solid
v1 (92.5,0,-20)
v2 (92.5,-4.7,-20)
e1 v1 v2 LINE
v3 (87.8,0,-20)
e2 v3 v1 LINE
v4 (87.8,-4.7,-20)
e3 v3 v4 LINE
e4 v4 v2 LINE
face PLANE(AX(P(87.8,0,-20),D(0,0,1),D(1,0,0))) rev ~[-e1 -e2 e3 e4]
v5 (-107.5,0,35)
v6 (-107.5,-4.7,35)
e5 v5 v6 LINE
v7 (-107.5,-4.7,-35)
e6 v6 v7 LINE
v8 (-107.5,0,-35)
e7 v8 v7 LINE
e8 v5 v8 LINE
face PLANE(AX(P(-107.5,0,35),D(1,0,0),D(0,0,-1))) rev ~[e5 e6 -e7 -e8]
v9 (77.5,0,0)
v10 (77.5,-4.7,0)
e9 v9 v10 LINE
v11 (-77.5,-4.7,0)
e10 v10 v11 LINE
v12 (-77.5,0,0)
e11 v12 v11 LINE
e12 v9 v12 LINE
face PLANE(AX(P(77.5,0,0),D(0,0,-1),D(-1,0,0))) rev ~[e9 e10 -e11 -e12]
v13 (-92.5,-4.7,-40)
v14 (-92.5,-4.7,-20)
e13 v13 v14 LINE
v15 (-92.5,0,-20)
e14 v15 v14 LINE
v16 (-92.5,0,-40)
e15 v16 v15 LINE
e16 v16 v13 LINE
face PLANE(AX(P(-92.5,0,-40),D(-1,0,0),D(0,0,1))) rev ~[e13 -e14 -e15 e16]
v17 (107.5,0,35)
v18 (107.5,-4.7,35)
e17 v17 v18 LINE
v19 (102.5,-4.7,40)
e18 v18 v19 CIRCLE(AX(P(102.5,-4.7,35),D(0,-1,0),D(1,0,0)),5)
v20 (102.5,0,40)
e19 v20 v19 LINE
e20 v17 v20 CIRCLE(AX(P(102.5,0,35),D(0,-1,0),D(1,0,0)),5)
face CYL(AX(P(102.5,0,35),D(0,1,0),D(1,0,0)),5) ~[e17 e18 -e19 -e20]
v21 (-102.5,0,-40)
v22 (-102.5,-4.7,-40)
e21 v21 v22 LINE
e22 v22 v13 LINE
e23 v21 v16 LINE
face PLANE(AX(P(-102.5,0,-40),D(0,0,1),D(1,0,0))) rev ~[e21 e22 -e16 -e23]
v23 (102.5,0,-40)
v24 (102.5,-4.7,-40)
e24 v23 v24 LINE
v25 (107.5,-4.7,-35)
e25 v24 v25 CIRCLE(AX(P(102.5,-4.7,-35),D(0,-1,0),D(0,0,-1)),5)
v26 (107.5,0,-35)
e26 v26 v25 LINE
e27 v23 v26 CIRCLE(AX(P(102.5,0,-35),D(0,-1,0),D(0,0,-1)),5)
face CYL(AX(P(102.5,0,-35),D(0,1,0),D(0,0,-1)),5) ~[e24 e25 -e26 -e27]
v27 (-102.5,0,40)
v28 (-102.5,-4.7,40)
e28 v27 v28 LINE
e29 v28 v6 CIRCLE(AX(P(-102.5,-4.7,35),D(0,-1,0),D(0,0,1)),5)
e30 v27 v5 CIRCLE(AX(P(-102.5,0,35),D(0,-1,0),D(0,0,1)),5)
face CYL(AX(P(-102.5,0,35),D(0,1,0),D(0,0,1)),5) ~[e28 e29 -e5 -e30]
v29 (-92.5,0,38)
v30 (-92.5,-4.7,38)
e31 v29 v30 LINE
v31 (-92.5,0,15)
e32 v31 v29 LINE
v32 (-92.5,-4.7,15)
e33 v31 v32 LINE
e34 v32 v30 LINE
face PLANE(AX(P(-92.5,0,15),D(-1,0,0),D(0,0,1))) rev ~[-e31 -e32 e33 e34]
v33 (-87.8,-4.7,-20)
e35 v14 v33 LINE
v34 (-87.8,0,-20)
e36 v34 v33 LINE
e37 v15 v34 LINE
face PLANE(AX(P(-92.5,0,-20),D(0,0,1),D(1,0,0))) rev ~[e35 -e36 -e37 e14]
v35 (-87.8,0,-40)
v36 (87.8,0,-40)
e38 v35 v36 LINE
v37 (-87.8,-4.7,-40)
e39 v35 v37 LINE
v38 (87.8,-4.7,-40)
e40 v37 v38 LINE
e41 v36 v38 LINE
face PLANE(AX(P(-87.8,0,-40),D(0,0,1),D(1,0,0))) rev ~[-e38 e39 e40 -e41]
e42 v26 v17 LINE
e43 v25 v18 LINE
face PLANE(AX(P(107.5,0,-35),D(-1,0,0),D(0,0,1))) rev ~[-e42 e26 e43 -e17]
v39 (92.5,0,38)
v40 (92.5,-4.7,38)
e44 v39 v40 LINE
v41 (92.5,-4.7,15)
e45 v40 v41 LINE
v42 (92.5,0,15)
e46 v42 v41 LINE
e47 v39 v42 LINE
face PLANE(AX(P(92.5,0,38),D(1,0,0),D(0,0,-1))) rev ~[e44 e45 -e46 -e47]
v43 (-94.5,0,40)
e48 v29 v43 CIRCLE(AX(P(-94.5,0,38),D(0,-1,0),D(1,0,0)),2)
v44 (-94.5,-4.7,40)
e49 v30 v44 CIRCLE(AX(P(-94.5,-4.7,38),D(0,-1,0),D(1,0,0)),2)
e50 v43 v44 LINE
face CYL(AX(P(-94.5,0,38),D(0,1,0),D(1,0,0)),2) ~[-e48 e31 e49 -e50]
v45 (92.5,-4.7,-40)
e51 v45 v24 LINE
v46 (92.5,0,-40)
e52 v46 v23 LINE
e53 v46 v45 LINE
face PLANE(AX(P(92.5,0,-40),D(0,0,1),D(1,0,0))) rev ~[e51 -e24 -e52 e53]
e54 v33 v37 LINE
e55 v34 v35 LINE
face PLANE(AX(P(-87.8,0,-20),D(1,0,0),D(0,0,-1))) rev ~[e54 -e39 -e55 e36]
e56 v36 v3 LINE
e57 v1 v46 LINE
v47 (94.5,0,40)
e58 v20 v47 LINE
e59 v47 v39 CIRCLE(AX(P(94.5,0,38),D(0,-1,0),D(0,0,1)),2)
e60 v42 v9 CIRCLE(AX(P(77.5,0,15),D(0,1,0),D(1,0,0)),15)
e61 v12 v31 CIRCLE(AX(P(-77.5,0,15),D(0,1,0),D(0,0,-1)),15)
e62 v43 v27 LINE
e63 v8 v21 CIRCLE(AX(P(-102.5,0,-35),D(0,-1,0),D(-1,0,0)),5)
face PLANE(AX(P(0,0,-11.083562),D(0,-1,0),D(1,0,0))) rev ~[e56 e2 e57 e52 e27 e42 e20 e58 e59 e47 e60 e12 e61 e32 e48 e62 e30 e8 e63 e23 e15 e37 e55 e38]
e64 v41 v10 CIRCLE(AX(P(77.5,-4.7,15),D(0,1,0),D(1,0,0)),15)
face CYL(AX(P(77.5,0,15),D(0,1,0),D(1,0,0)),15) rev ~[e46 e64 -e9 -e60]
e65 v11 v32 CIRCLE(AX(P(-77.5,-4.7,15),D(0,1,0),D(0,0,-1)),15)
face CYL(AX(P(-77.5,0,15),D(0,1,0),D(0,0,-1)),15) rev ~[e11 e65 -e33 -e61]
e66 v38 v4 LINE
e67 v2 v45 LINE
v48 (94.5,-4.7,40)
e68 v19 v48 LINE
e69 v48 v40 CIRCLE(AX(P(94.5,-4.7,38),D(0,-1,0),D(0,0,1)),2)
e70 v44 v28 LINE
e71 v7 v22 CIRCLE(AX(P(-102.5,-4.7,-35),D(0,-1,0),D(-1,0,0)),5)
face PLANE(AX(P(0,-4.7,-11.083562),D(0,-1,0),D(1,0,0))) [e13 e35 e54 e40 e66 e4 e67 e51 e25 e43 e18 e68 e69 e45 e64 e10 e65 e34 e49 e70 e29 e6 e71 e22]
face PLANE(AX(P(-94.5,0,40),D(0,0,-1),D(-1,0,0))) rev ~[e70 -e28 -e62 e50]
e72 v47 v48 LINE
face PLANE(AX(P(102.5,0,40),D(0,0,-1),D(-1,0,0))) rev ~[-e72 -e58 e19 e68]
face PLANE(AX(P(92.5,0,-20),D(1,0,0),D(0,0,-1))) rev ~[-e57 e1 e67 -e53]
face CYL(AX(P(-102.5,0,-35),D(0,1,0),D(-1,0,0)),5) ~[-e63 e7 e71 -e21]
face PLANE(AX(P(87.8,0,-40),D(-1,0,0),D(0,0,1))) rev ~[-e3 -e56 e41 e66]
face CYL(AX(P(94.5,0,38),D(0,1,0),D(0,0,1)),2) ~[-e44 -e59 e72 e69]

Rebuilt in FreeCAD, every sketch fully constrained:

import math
import FreeCAD as App
import Part
import Sketcher
from FreeCAD import Vector
Q = App.Units.Quantity

doc = App.newDocument("Part")
params = doc.addObject("Spreadsheet::Sheet", "Params")
for row, (alias, value) in enumerate([
    ("sketch1_radius", "2 mm"),
    ("sketch1_radius2", "5 mm"),
    ("sketch1_radius3", "15 mm"),
    ("sketch1_width", "8 mm"),
    ("sketch1_width2", "155 mm"),
    ("pad1_length", "4.7 mm"),
], start=1):
    params.set(f"A{row}", alias)
    params.set(f"B{row}", "=" + value)
    params.setAlias(f"B{row}", alias)

body = doc.addObject("PartDesign::Body", "Body")

sketch1 = body.newObject("Sketcher::SketchObject", "Sketch")
sketch1.AttachmentSupport = (doc.getObject("XZ_Plane"), [""])
sketch1.MapMode = "FlatFace"
sketch1.addGeometry([
    Part.LineSegment(Vector(-92.5, 15, 0), Vector(-92.5, 38, 0)),
    Part.ArcOfCircle(Part.Circle(Vector(-94.5, 38, 0), Vector(0, 0, 1), 2), math.radians(0), math.radians(90)),
    Part.LineSegment(Vector(-94.5, 40, 0), Vector(-102.5, 40, 0)),
    Part.ArcOfCircle(Part.Circle(Vector(-102.5, 35, 0), Vector(0, 0, 1), 5), math.radians(90), math.radians(180)),
    Part.LineSegment(Vector(-107.5, 35, 0), Vector(-107.5, -35, 0)),
    Part.ArcOfCircle(Part.Circle(Vector(-102.5, -35, 0), Vector(0, 0, 1), 5), math.radians(180), math.radians(270)),
    Part.LineSegment(Vector(-102.5, -40, 0), Vector(-92.5, -40, 0)),
    Part.LineSegment(Vector(-92.5, -40, 0), Vector(-92.5, -20, 0)),
    Part.LineSegment(Vector(-92.5, -20, 0), Vector(-87.8, -20, 0)),
    Part.LineSegment(Vector(-87.8, -20, 0), Vector(-87.8, -40, 0)),
    Part.LineSegment(Vector(-87.8, -40, 0), Vector(87.8, -40, 0)),
    Part.LineSegment(Vector(87.8, -40, 0), Vector(87.8, -20, 0)),
    Part.LineSegment(Vector(87.8, -20, 0), Vector(92.5, -20, 0)),
    Part.LineSegment(Vector(92.5, -20, 0), Vector(92.5, -40, 0)),
    Part.LineSegment(Vector(92.5, -40, 0), Vector(102.5, -40, 0)),
    Part.ArcOfCircle(Part.Circle(Vector(102.5, -35, 0), Vector(0, 0, 1), 5), math.radians(-90), math.radians(0)),
    Part.LineSegment(Vector(107.5, -35, 0), Vector(107.5, 35, 0)),
    Part.ArcOfCircle(Part.Circle(Vector(102.5, 35, 0), Vector(0, 0, 1), 5), math.radians(0), math.radians(90)),
    Part.LineSegment(Vector(102.5, 40, 0), Vector(94.5, 40, 0)),
    Part.ArcOfCircle(Part.Circle(Vector(94.5, 38, 0), Vector(0, 0, 1), 2), math.radians(90), math.radians(180)),
    Part.LineSegment(Vector(92.5, 38, 0), Vector(92.5, 15, 0)),
    Part.ArcOfCircle(Part.Circle(Vector(77.5, 15, 0), Vector(0, 0, 1), 15), math.radians(-90), math.radians(0)),
    Part.LineSegment(Vector(77.5, 0, 0), Vector(-77.5, 0, 0)),
    Part.ArcOfCircle(Part.Circle(Vector(-77.5, 15, 0), Vector(0, 0, 1), 15), math.radians(180), math.radians(270)),
], False)
sketch1.addConstraint([
    Sketcher.Constraint("Tangent", 0, 2, 1, 1),
    Sketcher.Constraint("Tangent", 1, 2, 2, 1),
    Sketcher.Constraint("Tangent", 2, 2, 3, 1),
    Sketcher.Constraint("Tangent", 3, 2, 4, 1),
    Sketcher.Constraint("Tangent", 4, 2, 5, 1),
    Sketcher.Constraint("Tangent", 5, 2, 6, 1),
    Sketcher.Constraint("Coincident", 6, 2, 7, 1),
    Sketcher.Constraint("Coincident", 7, 2, 8, 1),
    Sketcher.Constraint("Coincident", 8, 2, 9, 1),
    Sketcher.Constraint("Coincident", 9, 2, 10, 1),
    Sketcher.Constraint("Coincident", 10, 2, 11, 1),
    Sketcher.Constraint("Coincident", 11, 2, 12, 1),
    Sketcher.Constraint("Coincident", 12, 2, 13, 1),
    Sketcher.Constraint("Coincident", 13, 2, 14, 1),
    Sketcher.Constraint("Tangent", 14, 2, 15, 1),
    Sketcher.Constraint("Tangent", 15, 2, 16, 1),
    Sketcher.Constraint("Tangent", 16, 2, 17, 1),
    Sketcher.Constraint("Tangent", 17, 2, 18, 1),
    Sketcher.Constraint("Tangent", 18, 2, 19, 1),
    Sketcher.Constraint("Tangent", 19, 2, 20, 1),
    Sketcher.Constraint("Tangent", 20, 2, 21, 2),
    Sketcher.Constraint("Tangent", 21, 1, 22, 1),
    Sketcher.Constraint("Tangent", 22, 2, 23, 2),
    Sketcher.Constraint("Tangent", 23, 1, 0, 1),
    Sketcher.Constraint("Vertical", 0),
    Sketcher.Constraint("Horizontal", 2),
    Sketcher.Constraint("Vertical", 4),
    Sketcher.Constraint("Horizontal", 6),
    Sketcher.Constraint("Vertical", 7),
    Sketcher.Constraint("Horizontal", 8),
    Sketcher.Constraint("Vertical", 9),
    Sketcher.Constraint("Horizontal", 10),
    Sketcher.Constraint("Vertical", 11),
    Sketcher.Constraint("Horizontal", 12),
    Sketcher.Constraint("Vertical", 13),
    Sketcher.Constraint("Horizontal", 14),
    Sketcher.Constraint("Vertical", 16),
    Sketcher.Constraint("Horizontal", 18),
    Sketcher.Constraint("Vertical", 20),
    Sketcher.Constraint("Horizontal", 22),
    Sketcher.Constraint("Equal", 3, 5),
    Sketcher.Constraint("Equal", 5, 15),
    Sketcher.Constraint("Equal", 15, 17),
    Sketcher.Constraint("Equal", 1, 19),
    Sketcher.Constraint("Equal", 21, 23),
    Sketcher.Constraint("Symmetric", 3, 3, 15, 3, -1, 1),
    Sketcher.Constraint("Symmetric", 21, 1, 22, 2, -1, 1),
    Sketcher.Constraint("Symmetric", 8, 2, 11, 2, -2),
    Sketcher.Constraint("Symmetric", 6, 2, 13, 2, -2),
    Sketcher.Constraint("Horizontal", 3, 3, 17, 3),
    Sketcher.Constraint("Horizontal", 6, 2, 9, 2),
    Sketcher.Constraint("Vertical", 0, 2, 6, 2),
    Sketcher.Constraint("Radius", 1, Q("2 mm")),
    Sketcher.Constraint("Radius", 3, Q("5 mm")),
    Sketcher.Constraint("Radius", 21, Q("15 mm")),
    Sketcher.Constraint("DistanceX", 2, 2, 2, 1, Q("8 mm")),
    Sketcher.Constraint("DistanceX", 22, 2, 22, 1, Q("155 mm")),
    Sketcher.Constraint("DistanceY", 0, 1, 0, 2, Q("23 mm")),
    Sketcher.Constraint("DistanceY", 7, 1, 7, 2, Q("20 mm")),
    Sketcher.Constraint("DistanceX", 8, 1, 8, 2, Q("4.7 mm")),
])
sketch1.setExpression("Constraints[52]", "Params.sketch1_radius")
sketch1.setExpression("Constraints[53]", "Params.sketch1_radius2")
sketch1.setExpression("Constraints[54]", "Params.sketch1_radius3")
sketch1.setExpression("Constraints[55]", "Params.sketch1_width")
sketch1.setExpression("Constraints[56]", "Params.sketch1_width2")
pad1 = body.newObject("PartDesign::Pad", "Pad")
pad1.Profile = sketch1
pad1.setExpression("Length", "Params.pad1_length")

doc.recompute()
